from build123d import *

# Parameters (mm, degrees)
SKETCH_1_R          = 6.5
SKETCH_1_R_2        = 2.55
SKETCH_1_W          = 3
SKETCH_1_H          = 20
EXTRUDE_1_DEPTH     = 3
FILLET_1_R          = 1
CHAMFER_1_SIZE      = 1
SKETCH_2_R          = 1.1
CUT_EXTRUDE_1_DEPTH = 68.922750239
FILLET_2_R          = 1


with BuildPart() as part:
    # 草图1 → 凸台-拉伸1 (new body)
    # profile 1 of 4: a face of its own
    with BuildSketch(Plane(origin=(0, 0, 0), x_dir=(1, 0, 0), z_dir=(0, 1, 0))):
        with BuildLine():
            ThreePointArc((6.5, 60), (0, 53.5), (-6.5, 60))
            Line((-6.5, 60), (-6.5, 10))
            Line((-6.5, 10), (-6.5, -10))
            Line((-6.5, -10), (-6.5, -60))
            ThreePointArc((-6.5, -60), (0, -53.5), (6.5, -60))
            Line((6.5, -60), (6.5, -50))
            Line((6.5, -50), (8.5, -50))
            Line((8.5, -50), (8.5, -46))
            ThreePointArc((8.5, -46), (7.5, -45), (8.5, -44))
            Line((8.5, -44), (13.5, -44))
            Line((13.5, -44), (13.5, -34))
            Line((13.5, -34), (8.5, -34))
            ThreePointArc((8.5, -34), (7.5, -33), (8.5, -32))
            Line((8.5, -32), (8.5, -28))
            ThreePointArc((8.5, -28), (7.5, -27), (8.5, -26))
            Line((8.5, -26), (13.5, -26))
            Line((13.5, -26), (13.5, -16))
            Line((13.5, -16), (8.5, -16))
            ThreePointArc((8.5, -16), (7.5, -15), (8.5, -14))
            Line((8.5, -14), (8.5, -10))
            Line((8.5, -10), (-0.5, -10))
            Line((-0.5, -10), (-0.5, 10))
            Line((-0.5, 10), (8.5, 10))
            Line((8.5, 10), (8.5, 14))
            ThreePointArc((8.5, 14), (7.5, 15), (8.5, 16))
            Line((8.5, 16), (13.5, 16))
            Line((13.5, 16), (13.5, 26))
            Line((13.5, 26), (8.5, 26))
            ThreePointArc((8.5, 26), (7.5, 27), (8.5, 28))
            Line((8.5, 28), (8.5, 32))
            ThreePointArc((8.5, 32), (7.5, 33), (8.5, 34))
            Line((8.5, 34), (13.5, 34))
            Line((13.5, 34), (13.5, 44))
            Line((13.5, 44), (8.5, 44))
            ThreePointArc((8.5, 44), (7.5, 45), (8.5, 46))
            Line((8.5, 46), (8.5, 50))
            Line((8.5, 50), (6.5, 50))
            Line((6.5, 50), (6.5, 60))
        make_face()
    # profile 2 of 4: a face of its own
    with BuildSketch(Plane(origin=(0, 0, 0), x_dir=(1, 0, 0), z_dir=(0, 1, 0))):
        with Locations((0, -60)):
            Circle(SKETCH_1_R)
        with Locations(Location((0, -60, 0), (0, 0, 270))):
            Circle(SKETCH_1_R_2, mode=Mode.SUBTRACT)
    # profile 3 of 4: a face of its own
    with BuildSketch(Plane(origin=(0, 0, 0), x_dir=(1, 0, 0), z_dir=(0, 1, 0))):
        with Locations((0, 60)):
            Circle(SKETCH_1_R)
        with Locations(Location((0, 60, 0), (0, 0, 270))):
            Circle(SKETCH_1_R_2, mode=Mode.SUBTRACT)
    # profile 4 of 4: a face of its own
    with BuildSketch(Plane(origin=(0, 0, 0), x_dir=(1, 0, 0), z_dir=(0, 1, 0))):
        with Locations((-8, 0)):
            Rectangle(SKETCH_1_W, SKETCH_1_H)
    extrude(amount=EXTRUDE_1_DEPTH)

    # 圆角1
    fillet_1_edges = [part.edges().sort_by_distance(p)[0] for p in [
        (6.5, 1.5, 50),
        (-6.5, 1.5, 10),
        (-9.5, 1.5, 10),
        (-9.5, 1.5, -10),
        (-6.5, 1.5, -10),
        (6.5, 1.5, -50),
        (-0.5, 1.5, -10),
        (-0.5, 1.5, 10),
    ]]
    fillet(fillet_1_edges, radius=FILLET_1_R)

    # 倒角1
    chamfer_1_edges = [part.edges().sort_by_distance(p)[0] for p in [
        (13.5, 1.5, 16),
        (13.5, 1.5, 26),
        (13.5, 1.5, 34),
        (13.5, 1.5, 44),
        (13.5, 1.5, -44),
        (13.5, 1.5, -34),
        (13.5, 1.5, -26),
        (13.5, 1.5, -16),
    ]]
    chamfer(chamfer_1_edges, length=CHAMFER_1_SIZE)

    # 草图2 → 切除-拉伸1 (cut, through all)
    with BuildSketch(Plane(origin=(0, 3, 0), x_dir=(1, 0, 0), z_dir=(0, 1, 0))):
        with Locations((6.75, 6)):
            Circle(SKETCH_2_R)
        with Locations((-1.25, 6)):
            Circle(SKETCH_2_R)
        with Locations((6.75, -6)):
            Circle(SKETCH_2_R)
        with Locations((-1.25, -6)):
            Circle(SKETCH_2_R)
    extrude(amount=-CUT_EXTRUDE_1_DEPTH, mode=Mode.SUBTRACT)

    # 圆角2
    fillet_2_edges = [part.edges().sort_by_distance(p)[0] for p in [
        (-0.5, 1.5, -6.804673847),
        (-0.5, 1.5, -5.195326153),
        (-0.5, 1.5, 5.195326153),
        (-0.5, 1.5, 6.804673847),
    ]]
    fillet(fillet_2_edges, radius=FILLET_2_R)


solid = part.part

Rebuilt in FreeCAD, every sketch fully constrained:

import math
import FreeCAD as App
import Part
import Sketcher

V = App.Vector


def edges_at(feature, points):
    """Names of the edges that pass closest to the given points."""
    edges = feature.Shape.Edges
    near = lambda p: min(range(len(edges)), key=lambda i: edges[i].distToShape(Part.Vertex(*p))[0])
    return sorted({f"Edge{near(p) + 1}" for p in points})

doc = App.newDocument("Part")
params = doc.addObject("Spreadsheet::Sheet", "Params")
for row, (alias, value) in enumerate([
    ("sketch1_radius", "1 mm"),
    ("sketch1_diameter", "5.1 mm"),
    ("sketch1_radius2", "6.5 mm"),
    ("sketch1_width", "3 mm"),
    ("sketch1_width2", "2 mm"),
    ("pad1_length", "3 mm"),
    ("fillet_radius", "1 mm"),
    ("chamfer_size", "1 mm"),
    ("sketch2_diameter", "2.2 mm"),
    ("fillet2_radius", "1 mm"),
], start=1):
    params.set(f"A{row}", alias)
    params.set(f"B{row}", "=" + value)
    params.setAlias(f"B{row}", alias)

body = doc.addObject("PartDesign::Body", "Body")

sketch1 = body.newObject("Sketcher::SketchObject", "Sketch")
sketch1.AttachmentSupport = (doc.getObject("XZ_Plane"), [""])
sketch1.MapMode = "FlatFace"
sketch1.addGeometry([
    Part.LineSegment(V(-6.5, -60, 0), V(-6.5, -10, 0)),
    Part.LineSegment(V(-6.5, -10, 0), V(-9.5, -10, 0)),
    Part.LineSegment(V(-9.5, -10, 0), V(-9.5, 10, 0)),
    Part.LineSegment(V(-9.5, 10, 0), V(-6.5, 10, 0)),
    Part.LineSegment(V(-6.5, 10, 0), V(-6.5, 60, 0)),
    Part.ArcOfCircle(Part.Circle(V(0, 60, 0), V(0, 0, 1), 6.5), math.radians(0), math.radians(180)),
    Part.LineSegment(V(6.5, 60, 0), V(6.5, 50, 0)),
    Part.LineSegment(V(6.5, 50, 0), V(8.5, 50, 0)),
    Part.LineSegment(V(8.5, 50, 0), V(8.5, 46, 0)),
    Part.ArcOfCircle(Part.Circle(V(8.5, 45, 0), V(0, 0, 1), 1), math.radians(90), math.radians(270)),
    Part.LineSegment(V(8.5, 44, 0), V(13.5, 44, 0)),
    Part.LineSegment(V(13.5, 44, 0), V(13.5, 34, 0)),
    Part.LineSegment(V(13.5, 34, 0), V(8.5, 34, 0)),
    Part.ArcOfCircle(Part.Circle(V(8.5, 33, 0), V(0, 0, 1), 1), math.radians(90), math.radians(270)),
    Part.LineSegment(V(8.5, 32, 0), V(8.5, 28, 0)),
    Part.ArcOfCircle(Part.Circle(V(8.5, 27, 0), V(0, 0, 1), 1), math.radians(90), math.radians(270)),
    Part.LineSegment(V(8.5, 26, 0), V(13.5, 26, 0)),
    Part.LineSegment(V(13.5, 26, 0), V(13.5, 16, 0)),
    Part.LineSegment(V(13.5, 16, 0), V(8.5, 16, 0)),
    Part.ArcOfCircle(Part.Circle(V(8.5, 15, 0), V(0, 0, 1), 1), math.radians(90), math.radians(270)),
    Part.LineSegment(V(8.5, 14, 0), V(8.5, 10, 0)),
    Part.LineSegment(V(8.5, 10, 0), V(-0.5, 10, 0)),
    Part.LineSegment(V(-0.5, 10, 0), V(-0.5, -10, 0)),
    Part.LineSegment(V(-0.5, -10, 0), V(8.5, -10, 0)),
    Part.LineSegment(V(8.5, -10, 0), V(8.5, -14, 0)),
    Part.ArcOfCircle(Part.Circle(V(8.5, -15, 0), V(0, 0, 1), 1), math.radians(90), math.radians(270)),
    Part.LineSegment(V(8.5, -16, 0), V(13.5, -16, 0)),
    Part.LineSegment(V(13.5, -16, 0), V(13.5, -26, 0)),
    Part.LineSegment(V(13.5, -26, 0), V(8.5, -26, 0)),
    Part.ArcOfCircle(Part.Circle(V(8.5, -27, 0), V(0, 0, 1), 1), math.radians(90), math.radians(270)),
    Part.LineSegment(V(8.5, -28, 0), V(8.5, -32, 0)),
    Part.ArcOfCircle(Part.Circle(V(8.5, -33, 0), V(0, 0, 1), 1), math.radians(90), math.radians(270)),
    Part.LineSegment(V(8.5, -34, 0), V(13.5, -34, 0)),
    Part.LineSegment(V(13.5, -34, 0), V(13.5, -44, 0)),
    Part.LineSegment(V(13.5, -44, 0), V(8.5, -44, 0)),
    Part.ArcOfCircle(Part.Circle(V(8.5, -45, 0), V(0, 0, 1), 1), math.radians(90), math.radians(270)),
    Part.LineSegment(V(8.5, -46, 0), V(8.5, -50, 0)),
    Part.LineSegment(V(8.5, -50, 0), V(6.5, -50, 0)),
    Part.LineSegment(V(6.5, -50, 0), V(6.5, -60, 0)),
    Part.ArcOfCircle(Part.Circle(V(0, -60, 0), V(0, 0, 1), 6.5), math.radians(180), math.radians(360)),
    Part.Circle(V(0, -60, 0), V(0, 0, 1), 2.5),
    Part.Circle(V(0, 60, 0), V(0, 0, 1), 2.5),
], False)
sketch1.addConstraint([
    Sketcher.Constraint("Coincident", 0, 2, 1, 1),
    Sketcher.Constraint("Coincident", 1, 2, 2, 1),
    Sketcher.Constraint("Coincident", 2, 2, 3, 1),
    Sketcher.Constraint("Coincident", 3, 2, 4, 1),
    Sketcher.Constraint("Tangent", 4, 2, 5, 2),
    Sketcher.Constraint("Tangent", 5, 1, 6, 1),
    Sketcher.Constraint("Coincident", 6, 2, 7, 1),
    Sketcher.Constraint("Coincident", 7, 2, 8, 1),
    Sketcher.Constraint("Coincident", 8, 2, 9, 1),
    Sketcher.Constraint("Tangent", 9, 2, 10, 1),
    Sketcher.Constraint("Coincident", 10, 2, 11, 1),
    Sketcher.Constraint("Coincident", 11, 2, 12, 1),
    Sketcher.Constraint("Tangent", 12, 2, 13, 1),
    Sketcher.Constraint("Coincident", 13, 2, 14, 1),
    Sketcher.Constraint("Coincident", 14, 2, 15, 1),
    Sketcher.Constraint("Tangent", 15, 2, 16, 1),
    Sketcher.Constraint("Coincident", 16, 2, 17, 1),
    Sketcher.Constraint("Coincident", 17, 2, 18, 1),
    Sketcher.Constraint("Tangent", 18, 2, 19, 1),
    Sketcher.Constraint("Coincident", 19, 2, 20, 1),
    Sketcher.Constraint("Coincident", 20, 2, 21, 1),
    Sketcher.Constraint("Coincident", 21, 2, 22, 1),
    Sketcher.Constraint("Coincident", 22, 2, 23, 1),
    Sketcher.Constraint("Coincident", 23, 2, 24, 1),
    Sketcher.Constraint("Coincident", 24, 2, 25, 1),
    Sketcher.Constraint("Tangent", 25, 2, 26, 1),
    Sketcher.Constraint("Coincident", 26, 2, 27, 1),
    Sketcher.Constraint("Coincident", 27, 2, 28, 1),
    Sketcher.Constraint("Tangent", 28, 2, 29, 1),
    Sketcher.Constraint("Coincident", 29, 2, 30, 1),
    Sketcher.Constraint("Coincident", 30, 2, 31, 1),
    Sketcher.Constraint("Tangent", 31, 2, 32, 1),
    Sketcher.Constraint("Coincident", 32, 2, 33, 1),
    Sketcher.Constraint("Coincident", 33, 2, 34, 1),
    Sketcher.Constraint("Tangent", 34, 2, 35, 1),
    Sketcher.Constraint("Coincident", 35, 2, 36, 1),
    Sketcher.Constraint("Coincident", 36, 2, 37, 1),
    Sketcher.Constraint("Coincident", 37, 2, 38, 1),
    Sketcher.Constraint("Tangent", 38, 2, 39, 2),
    Sketcher.Constraint("Tangent", 39, 1, 0, 1),
    Sketcher.Constraint("Vertical", 0),
    Sketcher.Constraint("Horizontal", 1),
    Sketcher.Constraint("Vertical", 2),
    Sketcher.Constraint("Horizontal", 3),
    Sketcher.Constraint("Vertical", 4),
    Sketcher.Constraint("Vertical", 6),
    Sketcher.Constraint("Horizontal", 7),
    Sketcher.Constraint("Vertical", 8),
    Sketcher.Constraint("Horizontal", 10),
    Sketcher.Constraint("Vertical", 11),
    Sketcher.Constraint("Horizontal", 12),
    Sketcher.Constraint("Vertical", 14),
    Sketcher.Constraint("Horizontal", 16),
    Sketcher.Constraint("Vertical", 17),
    Sketcher.Constraint("Horizontal", 18),
    Sketcher.Constraint("Vertical", 20),
    Sketcher.Constraint("Horizontal", 21),
    Sketcher.Constraint("Vertical", 22),
    Sketcher.Constraint("Horizontal", 23),
    Sketcher.Constraint("Vertical", 24),
    Sketcher.Constraint("Horizontal", 26),
    Sketcher.Constraint("Vertical", 27),
    Sketcher.Constraint("Horizontal", 28),
    Sketcher.Constraint("Vertical", 30),
    Sketcher.Constraint("Horizontal", 32),
    Sketcher.Constraint("Vertical", 33),
    Sketcher.Constraint("Horizontal", 34),
    Sketcher.Constraint("Vertical", 36),
    Sketcher.Constraint("Horizontal", 37),
    Sketcher.Constraint("Vertical", 38),
    Sketcher.Constraint("Coincident", 40, 3, 39, 3),
    Sketcher.Constraint("Coincident", 41, 3, 5, 3),
    Sketcher.Constraint("Equal", 9, 13),
    Sketcher.Constraint("Equal", 13, 15),
    Sketcher.Constraint("Equal", 15, 19),
    Sketcher.Constraint("Equal", 19, 25),
    Sketcher.Constraint("Equal", 25, 29),
    Sketcher.Constraint("Equal", 29, 31),
    Sketcher.Constraint("Equal", 31, 35),
    Sketcher.Constraint("Equal", 5, 39),
    Sketcher.Constraint("Equal", 40, 41),
    Sketcher.Constraint("Symmetric", 5, 3, 39, 3, -1, 1),
    Sketcher.Constraint("Symmetric", 19, 3, 25, 3, -1),
    Sketcher.Constraint("Symmetric", 15, 3, 29, 3, -1),
    Sketcher.Constraint("Symmetric", 13, 3, 31, 3, -1),
    Sketcher.Constraint("Symmetric", 9, 3, 35, 3, -1),
    Sketcher.Constraint("Symmetric", 0, 2, 3, 2, -1),
    Sketcher.Constraint("Symmetric", 20, 2, 23, 2, -1),
    Sketcher.Constraint("Symmetric", 7, 2, 36, 2, -1),
    Sketcher.Constraint("Horizontal", 3, 2, 20, 2),
    Sketcher.Constraint("Vertical", 9, 3, 13, 3),
    Sketcher.Constraint("Vertical", 13, 3, 15, 3),
    Sketcher.Constraint("Vertical", 15, 3, 19, 3),
    Sketcher.Constraint("Vertical", 35, 3, 7, 2),
    Sketcher.Constraint("Vertical", 12, 2, 13, 2),
    Sketcher.Constraint("Vertical", 11, 2, 16, 2),
    Sketcher.Constraint("Vertical", 18, 2, 19, 2),
    Sketcher.Constraint("Vertical", 17, 2, 26, 2),
    Sketcher.Constraint("Vertical", 28, 2, 29, 2),
    Sketcher.Constraint("Vertical", 27, 2, 32, 2),
    Sketcher.Constraint("Equal", 6, 11),
    Sketcher.Constraint("Equal", 8, 14),
    Sketcher.Constraint("Equal", 11, 17),
    Sketcher.Constraint("Equal", 14, 20),
    Sketcher.Constraint("Radius", 9, 1.0),
    Sketcher.Constraint("Diameter", 40, 5.1),
    Sketcher.Constraint("Radius", 5, 6.5),
    Sketcher.Constraint("DistanceX", 1, 2, 1, 1, 3.0),
    Sketcher.Constraint("DistanceX", 7, 1, 7, 2, 2.0),
    Sketcher.Constraint("DistanceX", 10, 1, 10, 2, 5.0),
    Sketcher.Constraint("DistanceX", 21, 2, 21, 1, 9.0),
    Sketcher.Constraint("DistanceY", 0, 1, 0, 2, 50.0),
    Sketcher.Constraint("DistanceY", 2, 1, 2, 2, 20.0),
    Sketcher.Constraint("DistanceY", 6, 2, 6, 1, 10.0),
])
sketch1.setExpression("Constraints[104]", "Params.sketch1_radius")
sketch1.setExpression("Constraints[105]", "Params.sketch1_diameter")
sketch1.setExpression("Constraints[106]", "Params.sketch1_radius2")
sketch1.setExpression("Constraints[107]", "Params.sketch1_width")
sketch1.setExpression("Constraints[108]", "Params.sketch1_width2")
pad1 = body.newObject("PartDesign::Pad", "Pad")
pad1.Profile = sketch1
pad1.setExpression("Length", "Params.pad1_length")
pad1.Reversed = True
doc.recompute()

fillet = body.newObject("PartDesign::Fillet", "Fillet")
fillet.Base = (pad1, edges_at(pad1, [
    (6.5, 1.5, 50),
    (-6.5, 1.5, 10),
    (-9.5, 1.5, 10),
    (-9.5, 1.5, -10),
    (-6.5, 1.5, -10),
    (6.5, 1.5, -50),
    (-0.5, 1.5, -10),
    (-0.5, 1.5, 10),
]))
fillet.setExpression("Radius", "Params.fillet_radius")
doc.recompute()

chamfer = body.newObject("PartDesign::Chamfer", "Chamfer")
chamfer.Base = (fillet, edges_at(fillet, [
    (13.5, 1.5, 16),
    (13.5, 1.5, 26),
    (13.5, 1.5, 34),
    (13.5, 1.5, 44),
    (13.5, 1.5, -44),
    (13.5, 1.5, -34),
    (13.5, 1.5, -26),
    (13.5, 1.5, -16),
]))
chamfer.setExpression("Size", "Params.chamfer_size")

sketch2 = body.newObject("Sketcher::SketchObject", "Sketch001")
sketch2.AttachmentSupport = (doc.getObject("XZ_Plane"), [""])
sketch2.MapMode = "FlatFace"
sketch2.AttachmentOffset = App.Placement(V(0, 0, -3), App.Rotation())
sketch2.addGeometry([
    Part.Circle(V(6.8, -6, 0), V(0, 0, 1), 1.1),
    Part.Circle(V(-1.2, -6, 0), V(0, 0, 1), 1.1),
    Part.Circle(V(6.8, 6, 0), V(0, 0, 1), 1.1),
    Part.Circle(V(-1.2, 6, 0), V(0, 0, 1), 1.1),
], False)
sketch2.addConstraint([
    Sketcher.Constraint("Equal", 0, 1),
    Sketcher.Constraint("Equal", 1, 2),
    Sketcher.Constraint("Equal", 2, 3),
    Sketcher.Constraint("Symmetric", 0, 3, 2, 3, -1),
    Sketcher.Constraint("Symmetric", 1, 3, 3, 3, -1),
    Sketcher.Constraint("Horizontal", 0, 3, 1, 3),
    Sketcher.Constraint("Diameter", 0, 2.2),
    Sketcher.Constraint("DistanceY", 0, 3, -1, 1, 6.0),
    Sketcher.Constraint("DistanceX", 1, 3, 0, 3, 8.0),
    Sketcher.Constraint("DistanceX", -1, 1, 0, 3, 6.75),
])
sketch2.setExpression("Constraints[6]", "Params.sketch2_diameter")
pocket1 = body.newObject("PartDesign::Pocket", "Pocket")
pocket1.Profile = sketch2
pocket1.Type = "ThroughAll"
pocket1.Reversed = True
doc.recompute()

fillet2 = body.newObject("PartDesign::Fillet", "Fillet001")
fillet2.Base = (pocket1, edges_at(pocket1, [
    (-0.5, 1.5, -6.805),
    (-0.5, 1.5, -5.195),
    (-0.5, 1.5, 5.195),
    (-0.5, 1.5, 6.805),
]))
fillet2.setExpression("Radius", "Params.fillet2_radius")

doc.recompute()
